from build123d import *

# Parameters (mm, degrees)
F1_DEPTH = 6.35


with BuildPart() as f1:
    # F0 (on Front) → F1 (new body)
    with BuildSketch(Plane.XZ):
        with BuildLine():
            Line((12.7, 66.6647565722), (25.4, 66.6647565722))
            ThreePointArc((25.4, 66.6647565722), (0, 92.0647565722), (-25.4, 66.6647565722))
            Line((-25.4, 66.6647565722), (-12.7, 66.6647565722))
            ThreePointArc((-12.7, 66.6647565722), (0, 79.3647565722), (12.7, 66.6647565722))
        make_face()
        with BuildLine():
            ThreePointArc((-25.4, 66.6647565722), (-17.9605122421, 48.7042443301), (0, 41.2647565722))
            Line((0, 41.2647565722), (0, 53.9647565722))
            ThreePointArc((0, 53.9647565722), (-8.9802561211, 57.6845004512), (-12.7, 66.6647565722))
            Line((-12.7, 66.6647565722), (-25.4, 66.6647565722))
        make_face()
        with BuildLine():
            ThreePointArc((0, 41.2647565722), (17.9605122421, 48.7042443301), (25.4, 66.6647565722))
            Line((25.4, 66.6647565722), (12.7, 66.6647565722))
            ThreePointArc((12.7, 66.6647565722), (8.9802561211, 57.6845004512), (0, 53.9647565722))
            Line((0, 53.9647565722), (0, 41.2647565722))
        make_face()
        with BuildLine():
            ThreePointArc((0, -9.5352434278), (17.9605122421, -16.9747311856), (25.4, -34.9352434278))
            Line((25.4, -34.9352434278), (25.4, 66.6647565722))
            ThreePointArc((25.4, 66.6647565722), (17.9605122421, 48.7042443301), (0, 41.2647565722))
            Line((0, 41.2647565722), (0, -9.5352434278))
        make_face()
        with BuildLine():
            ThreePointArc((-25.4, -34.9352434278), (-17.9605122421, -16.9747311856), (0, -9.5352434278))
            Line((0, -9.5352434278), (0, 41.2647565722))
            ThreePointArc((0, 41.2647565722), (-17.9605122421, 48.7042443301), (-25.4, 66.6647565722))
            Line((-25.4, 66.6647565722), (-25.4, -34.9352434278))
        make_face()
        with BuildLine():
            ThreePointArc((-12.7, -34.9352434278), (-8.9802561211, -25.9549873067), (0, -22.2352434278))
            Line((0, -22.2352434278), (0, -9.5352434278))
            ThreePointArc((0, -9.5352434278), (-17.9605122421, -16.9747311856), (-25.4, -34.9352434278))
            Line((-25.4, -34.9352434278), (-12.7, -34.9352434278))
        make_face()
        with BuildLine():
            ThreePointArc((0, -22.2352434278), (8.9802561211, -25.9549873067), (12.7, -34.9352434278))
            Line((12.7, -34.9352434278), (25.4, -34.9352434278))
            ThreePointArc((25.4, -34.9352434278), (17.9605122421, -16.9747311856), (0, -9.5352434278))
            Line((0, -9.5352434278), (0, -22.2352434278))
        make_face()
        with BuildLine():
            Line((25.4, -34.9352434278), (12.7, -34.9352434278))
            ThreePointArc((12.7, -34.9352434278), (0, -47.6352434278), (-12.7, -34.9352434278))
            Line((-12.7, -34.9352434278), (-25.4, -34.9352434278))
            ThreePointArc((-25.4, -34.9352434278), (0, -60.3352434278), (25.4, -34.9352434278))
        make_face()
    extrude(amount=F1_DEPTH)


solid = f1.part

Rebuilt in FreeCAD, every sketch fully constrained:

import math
import FreeCAD as App
import Part
import Sketcher

V = App.Vector
Q = App.Units.Quantity

doc = App.newDocument("Part")
body = doc.addObject("PartDesign::Body", "Body")

# Sketch on XZ plane
sketch1 = body.newObject("Sketcher::SketchObject", "Sketch")
sketch1.AttachmentSupport = (doc.getObject("XZ_Plane"), [""])
sketch1.MapMode = "FlatFace"
sketch1.addGeometry(Part.ArcOfCircle(Part.Circle(V(0, 66.664757, 0), V(0, 0, 1), 25.4), math.radians(0), math.radians(180)), False)
sketch1.addGeometry(Part.LineSegment(V(-25.4, 66.664757, 0), V(-25.4, -34.935243, 0)), False)
sketch1.addGeometry(Part.ArcOfCircle(Part.Circle(V(0, -34.935243, 0), V(0, 0, 1), 25.4), math.radians(180), math.radians(360)), False)
sketch1.addGeometry(Part.LineSegment(V(25.4, -34.935243, 0), V(25.4, 66.664757, 0)), False)
sketch1.addGeometry(Part.ArcOfCircle(Part.Circle(V(0, -34.935243, 0), V(0, 0, 1), 12.7), math.radians(90), math.radians(180)), False)
sketch1.addGeometry(Part.ArcOfCircle(Part.Circle(V(0, -34.935243, 0), V(0, 0, 1), 12.7), math.radians(0), math.radians(90)), False)
sketch1.addGeometry(Part.ArcOfCircle(Part.Circle(V(0, -34.935243, 0), V(0, 0, 1), 12.7), math.radians(180), math.radians(360)), False)
sketch1.addGeometry(Part.ArcOfCircle(Part.Circle(V(0, 66.664757, 0), V(0, 0, 1), 12.7), math.radians(180), math.radians(270)), False)
sketch1.addGeometry(Part.ArcOfCircle(Part.Circle(V(0, 66.664757, 0), V(0, 0, 1), 12.7), math.radians(0), math.radians(180)), False)
sketch1.addGeometry(Part.ArcOfCircle(Part.Circle(V(0, 66.664757, 0), V(0, 0, 1), 12.7), math.radians(-90), math.radians(0)), False)
sketch1.addConstraint(Sketcher.Constraint("Tangent", 0, 2, 1, 1))
sketch1.addConstraint(Sketcher.Constraint("Tangent", 1, 2, 2, 1))
sketch1.addConstraint(Sketcher.Constraint("Tangent", 2, 2, 3, 1))
sketch1.addConstraint(Sketcher.Constraint("Tangent", 3, 2, 0, 1))
sketch1.addConstraint(Sketcher.Constraint("Tangent", 4, 1, 5, 2))
sketch1.addConstraint(Sketcher.Constraint("Tangent", 5, 1, 6, 2))
sketch1.addConstraint(Sketcher.Constraint("Tangent", 6, 1, 4, 2))
sketch1.addConstraint(Sketcher.Constraint("Tangent", 7, 1, 8, 2))
sketch1.addConstraint(Sketcher.Constraint("Tangent", 8, 1, 9, 2))
sketch1.addConstraint(Sketcher.Constraint("Tangent", 9, 1, 7, 2))
sketch1.addConstraint(Sketcher.Constraint("Vertical", 1))
sketch1.addConstraint(Sketcher.Constraint("Vertical", 3))
sketch1.addConstraint(Sketcher.Constraint("Coincident", 4, 3, 2, 3))
sketch1.addConstraint(Sketcher.Constraint("Coincident", 7, 3, 0, 3))
sketch1.addConstraint(Sketcher.Constraint("Equal", 6, 7))
sketch1.addConstraint(Sketcher.Constraint("Symmetric", 5, 1, 6, 1, -2))
sketch1.addConstraint(Sketcher.Constraint("PointOnObject", 4, 1, -2))
sketch1.addConstraint(Sketcher.Constraint("PointOnObject", 9, 1, -2))
sketch1.addConstraint(Sketcher.Constraint("Horizontal", 2, 2, 5, 1))
sketch1.addConstraint(Sketcher.Constraint("Horizontal", 3, 2, 7, 1))
sketch1.addConstraint(Sketcher.Constraint("Horizontal", 7, 1, 8, 1))
sketch1.addConstraint(Sketcher.Constraint("Radius", 0, Q("1 in")))
sketch1.addConstraint(Sketcher.Constraint("Radius", 4, Q("0.5 in")))
sketch1.addConstraint(Sketcher.Constraint("DistanceY", 1, 2, 1, 1, Q("4 in")))
sketch1.addConstraint(Sketcher.Constraint("DistanceY", -1, 1, 0, 3, 66.664757))
pad1 = body.newObject("PartDesign::Pad", "Pad")
pad1.Profile = sketch1
pad1.Length = Q("0.25 in")

doc.recompute()
